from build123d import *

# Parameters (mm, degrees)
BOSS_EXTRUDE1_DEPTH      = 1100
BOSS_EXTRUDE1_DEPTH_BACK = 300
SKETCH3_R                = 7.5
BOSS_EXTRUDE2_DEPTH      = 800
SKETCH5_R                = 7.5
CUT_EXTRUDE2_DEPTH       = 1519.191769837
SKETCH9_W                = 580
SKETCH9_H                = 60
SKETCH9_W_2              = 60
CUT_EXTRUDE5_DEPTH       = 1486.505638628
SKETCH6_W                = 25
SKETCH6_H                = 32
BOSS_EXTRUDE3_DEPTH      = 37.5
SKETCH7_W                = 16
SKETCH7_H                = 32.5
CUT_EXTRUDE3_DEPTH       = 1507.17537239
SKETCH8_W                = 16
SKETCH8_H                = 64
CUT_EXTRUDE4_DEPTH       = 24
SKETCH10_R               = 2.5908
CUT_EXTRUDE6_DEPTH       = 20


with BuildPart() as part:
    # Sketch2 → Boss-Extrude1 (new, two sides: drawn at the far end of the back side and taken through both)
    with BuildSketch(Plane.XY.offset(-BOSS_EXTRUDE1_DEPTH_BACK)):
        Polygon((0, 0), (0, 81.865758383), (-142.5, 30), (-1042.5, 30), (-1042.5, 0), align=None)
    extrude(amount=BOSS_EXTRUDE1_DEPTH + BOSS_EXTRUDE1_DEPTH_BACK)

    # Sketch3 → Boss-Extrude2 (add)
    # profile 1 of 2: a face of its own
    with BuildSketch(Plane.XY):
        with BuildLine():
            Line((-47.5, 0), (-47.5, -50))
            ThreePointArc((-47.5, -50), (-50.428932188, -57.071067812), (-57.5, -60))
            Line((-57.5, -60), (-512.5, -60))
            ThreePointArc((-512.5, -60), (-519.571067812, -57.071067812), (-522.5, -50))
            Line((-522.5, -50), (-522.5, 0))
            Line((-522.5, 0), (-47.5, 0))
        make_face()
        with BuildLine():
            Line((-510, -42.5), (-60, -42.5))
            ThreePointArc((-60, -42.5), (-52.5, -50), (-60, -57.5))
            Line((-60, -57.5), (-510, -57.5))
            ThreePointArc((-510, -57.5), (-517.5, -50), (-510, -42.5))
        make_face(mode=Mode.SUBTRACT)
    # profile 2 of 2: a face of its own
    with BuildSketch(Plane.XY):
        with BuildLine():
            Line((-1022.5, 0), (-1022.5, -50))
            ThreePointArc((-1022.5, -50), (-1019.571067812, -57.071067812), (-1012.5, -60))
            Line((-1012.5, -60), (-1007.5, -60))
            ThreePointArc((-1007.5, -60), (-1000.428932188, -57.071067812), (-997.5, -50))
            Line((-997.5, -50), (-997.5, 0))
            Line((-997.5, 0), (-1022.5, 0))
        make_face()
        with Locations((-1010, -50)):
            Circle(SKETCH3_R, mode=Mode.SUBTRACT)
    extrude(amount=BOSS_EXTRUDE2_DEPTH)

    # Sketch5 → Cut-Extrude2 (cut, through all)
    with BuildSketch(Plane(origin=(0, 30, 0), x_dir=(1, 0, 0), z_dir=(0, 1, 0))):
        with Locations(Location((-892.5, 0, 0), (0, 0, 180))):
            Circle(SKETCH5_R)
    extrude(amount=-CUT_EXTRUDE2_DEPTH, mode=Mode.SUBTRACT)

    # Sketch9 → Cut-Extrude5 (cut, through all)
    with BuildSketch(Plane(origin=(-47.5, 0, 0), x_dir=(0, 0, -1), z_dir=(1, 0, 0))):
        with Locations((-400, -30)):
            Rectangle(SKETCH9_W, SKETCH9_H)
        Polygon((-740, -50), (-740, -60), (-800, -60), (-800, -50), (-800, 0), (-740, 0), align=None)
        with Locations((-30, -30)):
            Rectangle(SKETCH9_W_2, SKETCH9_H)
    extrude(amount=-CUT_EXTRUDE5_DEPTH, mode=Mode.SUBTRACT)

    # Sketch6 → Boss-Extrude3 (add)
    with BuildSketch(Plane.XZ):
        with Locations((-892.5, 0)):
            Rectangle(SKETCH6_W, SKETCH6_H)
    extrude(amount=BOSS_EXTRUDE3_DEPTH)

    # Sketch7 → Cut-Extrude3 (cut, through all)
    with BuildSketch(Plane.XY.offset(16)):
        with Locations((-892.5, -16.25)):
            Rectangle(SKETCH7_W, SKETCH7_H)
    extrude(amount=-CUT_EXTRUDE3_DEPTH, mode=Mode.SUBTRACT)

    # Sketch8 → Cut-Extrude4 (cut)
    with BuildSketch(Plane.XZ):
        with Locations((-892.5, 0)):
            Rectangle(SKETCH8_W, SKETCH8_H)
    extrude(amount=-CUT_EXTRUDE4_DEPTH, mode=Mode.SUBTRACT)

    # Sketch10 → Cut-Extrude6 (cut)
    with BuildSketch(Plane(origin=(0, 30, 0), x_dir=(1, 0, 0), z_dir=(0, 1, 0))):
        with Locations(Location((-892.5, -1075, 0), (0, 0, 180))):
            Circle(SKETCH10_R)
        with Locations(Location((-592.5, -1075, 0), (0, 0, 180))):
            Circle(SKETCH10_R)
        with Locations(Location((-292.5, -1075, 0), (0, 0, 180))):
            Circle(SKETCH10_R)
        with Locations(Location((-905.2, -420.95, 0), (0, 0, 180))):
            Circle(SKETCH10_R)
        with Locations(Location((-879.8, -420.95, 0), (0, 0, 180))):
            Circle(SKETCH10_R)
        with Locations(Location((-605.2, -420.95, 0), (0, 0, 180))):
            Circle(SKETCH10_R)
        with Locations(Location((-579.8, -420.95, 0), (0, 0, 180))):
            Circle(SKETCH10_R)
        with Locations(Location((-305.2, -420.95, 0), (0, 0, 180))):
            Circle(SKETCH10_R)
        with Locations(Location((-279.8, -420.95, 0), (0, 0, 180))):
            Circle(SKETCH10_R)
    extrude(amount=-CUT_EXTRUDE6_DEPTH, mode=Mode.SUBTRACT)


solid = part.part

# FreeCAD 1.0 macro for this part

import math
import FreeCAD as App
import Part
import Sketcher
from FreeCAD import Vector
Q = App.Units.Quantity


def add_polygon(sketch, points):
    """Adds a closed chain of lines whose ends are joined by coincident constraints."""
    first, n = sketch.GeometryCount, len(points)
    for a, b in zip(points, points[1:] + points[:1]):
        sketch.addGeometry(Part.LineSegment(App.Vector(*a, 0), App.Vector(*b, 0)), False)
    for i in range(n):
        sketch.addConstraint(Sketcher.Constraint("Coincident", first + i, 2, first + (i + 1) % n, 1))

doc = App.newDocument("Part")
body = doc.addObject("PartDesign::Body", "Body")

# Sketch on XY plane
sketch1 = body.newObject("Sketcher::SketchObject", "Sketch")
sketch1.AttachmentSupport = (doc.getObject("XY_Plane"), [""])
sketch1.MapMode = "FlatFace"
add_polygon(sketch1, [(0, 0), (0, 82), (-142, 30), (-1042, 30), (-1042, 0)])  # lines 0-4
sketch1.addConstraint([
    Sketcher.Constraint("Vertical", 0),
    Sketcher.Constraint("Horizontal", 2),
    Sketcher.Constraint("Vertical", 3),
    Sketcher.Constraint("Horizontal", 4),
    Sketcher.Constraint("Coincident", 4, 2, -1, 1),
    Sketcher.Constraint("DistanceX", 2, 2, 2, 1, 900.0),
    Sketcher.Constraint("DistanceY", 3, 2, 3, 1, 30.0),
    Sketcher.Constraint("Angle", 1, Q("-160 deg")),
    Sketcher.Constraint("DistanceX", 4, 1, 4, 2, 1042.5),
])
pad1 = body.newObject("PartDesign::Pad", "Pad")
pad1.Profile = sketch1
pad1.Type = "TwoLengths"
pad1.Length = 1100
pad1.Length2 = 300

# Sketch on XY plane
sketch2 = body.newObject("Sketcher::SketchObject", "Sketch001")
sketch2.AttachmentSupport = (doc.getObject("XY_Plane"), [""])
sketch2.MapMode = "FlatFace"
sketch2.addGeometry([
    Part.LineSegment(Vector(-48, -50, 0), Vector(-48, 0, 0)),  # 0
    Part.LineSegment(Vector(-48, 0, 0), Vector(-522, 0, 0)),  # 1
    Part.LineSegment(Vector(-522, 0, 0), Vector(-522, -50, 0)),  # 2
    Part.ArcOfCircle(Part.Circle(Vector(-512, -50, 0), Vector(0, 0, 1), 10), math.radians(180), math.radians(270)),  # 3
    Part.LineSegment(Vector(-512, -60, 0), Vector(-58, -60, 0)),  # 4
    Part.ArcOfCircle(Part.Circle(Vector(-58, -50, 0), Vector(0, 0, 1), 10), math.radians(-90), math.radians(0)),  # 5
    Part.LineSegment(Vector(-510, -42, 0), Vector(-60, -42, 0)),  # 6
    Part.ArcOfCircle(Part.Circle(Vector(-60, -50, 0), Vector(0, 0, 1), 8), math.radians(-90), math.radians(90)),  # 7
    Part.LineSegment(Vector(-60, -58, 0), Vector(-510, -58, 0)),  # 8
    Part.ArcOfCircle(Part.Circle(Vector(-510, -50, 0), Vector(0, 0, 1), 8), math.radians(90), math.radians(270)),  # 9
    Part.LineSegment(Vector(-1022, 0, 0), Vector(-1022, -50, 0)),  # 10
    Part.ArcOfCircle(Part.Circle(Vector(-1012, -50, 0), Vector(0, 0, 1), 10), math.radians(180), math.radians(270)),  # 11
    Part.LineSegment(Vector(-1012, -60, 0), Vector(-1008, -60, 0)),  # 12
    Part.ArcOfCircle(Part.Circle(Vector(-1008, -50, 0), Vector(0, 0, 1), 10), math.radians(-90), math.radians(0)),  # 13
    Part.LineSegment(Vector(-998, -50, 0), Vector(-998, 0, 0)),  # 14
    Part.LineSegment(Vector(-998, 0, 0), Vector(-1022, 0, 0)),  # 15
    Part.Circle(Vector(-1010, -50, 0), Vector(0, 0, 1), 8),  # 16
], False)
sketch2.addConstraint([
    Sketcher.Constraint("Coincident", 0, 2, 1, 1),
    Sketcher.Constraint("Coincident", 1, 2, 2, 1),
    Sketcher.Constraint("Tangent", 2, 2, 3, 1),
    Sketcher.Constraint("Tangent", 3, 2, 4, 1),
    Sketcher.Constraint("Tangent", 4, 2, 5, 1),
    Sketcher.Constraint("Tangent", 5, 2, 0, 1),
    Sketcher.Constraint("Tangent", 6, 2, 7, 2),
    Sketcher.Constraint("Tangent", 7, 1, 8, 1),
    Sketcher.Constraint("Tangent", 8, 2, 9, 2),
    Sketcher.Constraint("Tangent", 9, 1, 6, 1),
    Sketcher.Constraint("Tangent", 10, 2, 11, 1),
    Sketcher.Constraint("Tangent", 11, 2, 12, 1),
    Sketcher.Constraint("Tangent", 12, 2, 13, 1),
    Sketcher.Constraint("Tangent", 13, 2, 14, 1),
    Sketcher.Constraint("Coincident", 14, 2, 15, 1),
    Sketcher.Constraint("Coincident", 15, 2, 10, 1),
    Sketcher.Constraint("Vertical", 0),
    Sketcher.Constraint("Horizontal", 1),
    Sketcher.Constraint("Vertical", 2),
    Sketcher.Constraint("Horizontal", 4),
    Sketcher.Constraint("Horizontal", 6),
    Sketcher.Constraint("Horizontal", 8),
    Sketcher.Constraint("Vertical", 10),
    Sketcher.Constraint("Horizontal", 12),
    Sketcher.Constraint("Vertical", 14),
    Sketcher.Constraint("Horizontal", 15),
    Sketcher.Constraint("Equal", 3, 5),
    Sketcher.Constraint("Equal", 5, 11),
    Sketcher.Constraint("Equal", 11, 13),
    Sketcher.Constraint("Equal", 9, 16),
    Sketcher.Constraint("PointOnObject", 0, 2, -1),
    Sketcher.Constraint("PointOnObject", 14, 2, -1),
    Sketcher.Constraint("Horizontal", 5, 3, 7, 3),
    Sketcher.Constraint("Horizontal", 9, 3, 11, 3),
    Sketcher.Constraint("Horizontal", 13, 3, 16, 3),
    Sketcher.Constraint("Diameter", 16, 15.0),
    Sketcher.Constraint("Radius", 3, 10.0),
    Sketcher.Constraint("DistanceX", 1, 2, 1, 1, 475.0),
    Sketcher.Constraint("DistanceX", 6, 1, 6, 2, 450.0),
    Sketcher.Constraint("DistanceX", 12, 1, 12, 2, 5.0),
    Sketcher.Constraint("DistanceY", 0, 1, 0, 2, 50.0),
    Sketcher.Constraint("DistanceX", 7, 3, -1, 1, 60.0),
    Sketcher.Constraint("DistanceX", 16, 3, -1, 1, 1010.0),
    Sketcher.Constraint("DistanceX", 11, 3, 3, 3, 500.0),
    Sketcher.Constraint("DistanceX", 3, 3, -1, 1, 512.5),
])
pad2 = body.newObject("PartDesign::Pad", "Pad001")
pad2.Profile = sketch2
pad2.Length = 800

# Sketch on XZ plane
sketch3 = body.newObject("Sketcher::SketchObject", "Sketch002")
sketch3.AttachmentSupport = (doc.getObject("XZ_Plane"), [""])
sketch3.MapMode = "FlatFace"
sketch3.AttachmentOffset = App.Placement(Vector(0, 0, -30), App.Rotation())
sketch3.addGeometry(Part.Circle(Vector(-892, 0, 0), Vector(0, 0, 1), 8), False)
sketch3.addConstraint([
    Sketcher.Constraint("PointOnObject", 0, 3, -1),
    Sketcher.Constraint("Diameter", 0, 15.0),
    Sketcher.Constraint("DistanceX", 0, 3, -1, 1, 892.5),
])
pocket1 = body.newObject("PartDesign::Pocket", "Pocket")
pocket1.Profile = sketch3
pocket1.Type = "ThroughAll"
pocket1.Reversed = True

# Sketch on YZ plane
sketch4 = body.newObject("Sketcher::SketchObject", "Sketch003")
sketch4.AttachmentSupport = (doc.getObject("YZ_Plane"), [""])
sketch4.MapMode = "FlatFace"
sketch4.AttachmentOffset = App.Placement(Vector(0, 0, -47.5), App.Rotation())
add_polygon(sketch4, [(0, 690), (-60, 690), (-60, 110), (0, 110)])  # lines 0-3
add_polygon(sketch4, [(-60, 740), (0, 740), (0, 800), (-60, 800)])  # lines 4-7
add_polygon(sketch4, [(0, 60), (-60, 60), (-60, 0), (0, 0)])  # lines 8-11
sketch4.addConstraint([
    Sketcher.Constraint("Horizontal", 0),
    Sketcher.Constraint("Vertical", 1),
    Sketcher.Constraint("Horizontal", 2),
    Sketcher.Constraint("Vertical", 3),
    Sketcher.Constraint("Horizontal", 4),
    Sketcher.Constraint("Vertical", 5),
    Sketcher.Constraint("Horizontal", 6),
    Sketcher.Constraint("Vertical", 7),
    Sketcher.Constraint("Horizontal", 8),
    Sketcher.Constraint("Vertical", 9),
    Sketcher.Constraint("Horizontal", 10),
    Sketcher.Constraint("Vertical", 11),
    Sketcher.Constraint("Coincident", 10, 2, -1, 1),
    Sketcher.Constraint("PointOnObject", 2, 2, -2),
    Sketcher.Constraint("PointOnObject", 4, 2, -2),
    Sketcher.Constraint("Vertical", 1, 2, 6, 2),
    Sketcher.Constraint("Vertical", 7, 2, 8, 2),
    Sketcher.Constraint("Equal", 10, 5),
    Sketcher.Constraint("Equal", 7, 9),
    Sketcher.Constraint("DistanceX", 0, 2, 0, 1, 60.0),
    Sketcher.Constraint("DistanceY", 1, 2, 1, 1, 580.0),
    Sketcher.Constraint("DistanceY", -1, 1, 0, 2, 690.0),
    Sketcher.Constraint("DistanceY", -1, 1, 4, 2, 740.0),
])
pocket2 = body.newObject("PartDesign::Pocket", "Pocket001")
pocket2.Profile = sketch4
pocket2.Type = "ThroughAll"

# Sketch on XZ plane
sketch5 = body.newObject("Sketcher::SketchObject", "Sketch004")
sketch5.AttachmentSupport = (doc.getObject("XZ_Plane"), [""])
sketch5.MapMode = "FlatFace"
add_polygon(sketch5, [(-905, 16), (-905, -16), (-880, -16), (-880, 16)])  # lines 0-3
sketch5.addConstraint([
    Sketcher.Constraint("Vertical", 0),
    Sketcher.Constraint("Horizontal", 1),
    Sketcher.Constraint("Vertical", 2),
    Sketcher.Constraint("Horizontal", 3),
    Sketcher.Constraint("DistanceX", 1, 1, 1, 2, 25.0),
    Sketcher.Constraint("DistanceY", 0, 2, 0, 1, 32.0),
    Sketcher.Constraint("DistanceX", 0, 2, -1, 1, 905.0),
    Sketcher.Constraint("DistanceY", 0, 2, -1, 1, 16.0),
])
pad3 = body.newObject("PartDesign::Pad", "Pad002")
pad3.Profile = sketch5
pad3.Length = 37.5

# Sketch on XY plane
sketch6 = body.newObject("Sketcher::SketchObject", "Sketch005")
sketch6.AttachmentSupport = (doc.getObject("XY_Plane"), [""])
sketch6.MapMode = "FlatFace"
sketch6.AttachmentOffset = App.Placement(Vector(0, 0, 16), App.Rotation())
add_polygon(sketch6, [(-900, 0), (-900, -32), (-884, -32), (-884, 0)])  # lines 0-3
sketch6.addConstraint([
    Sketcher.Constraint("Vertical", 0),
    Sketcher.Constraint("Horizontal", 1),
    Sketcher.Constraint("Vertical", 2),
    Sketcher.Constraint("Horizontal", 3),
    Sketcher.Constraint("PointOnObject", 2, 2, -1),
    Sketcher.Constraint("DistanceX", 1, 1, 1, 2, 16.0),
    Sketcher.Constraint("DistanceY", 0, 2, 0, 1, 32.5),
    Sketcher.Constraint("DistanceX", 0, 2, -1, 1, 900.5),
])
pocket3 = body.newObject("PartDesign::Pocket", "Pocket002")
pocket3.Profile = sketch6
pocket3.Type = "ThroughAll"

# Sketch on XZ plane
sketch7 = body.newObject("Sketcher::SketchObject", "Sketch006")
sketch7.AttachmentSupport = (doc.getObject("XZ_Plane"), [""])
sketch7.MapMode = "FlatFace"
add_polygon(sketch7, [(-900, 32), (-900, -32), (-884, -32), (-884, 32)])  # lines 0-3
sketch7.addConstraint([
    Sketcher.Constraint("Vertical", 0),
    Sketcher.Constraint("Horizontal", 1),
    Sketcher.Constraint("Vertical", 2),
    Sketcher.Constraint("Horizontal", 3),
    Sketcher.Constraint("DistanceX", 1, 1, 1, 2, 16.0),
    Sketcher.Constraint("DistanceY", 0, 2, 0, 1, 64.0),
    Sketcher.Constraint("DistanceY", 0, 2, -1, 1, 32.0),
    Sketcher.Constraint("DistanceX", 0, 2, -1, 1, 900.5),
])
pocket4 = body.newObject("PartDesign::Pocket", "Pocket003")
pocket4.Profile = sketch7
pocket4.Length = 24

# Sketch on XZ plane
sketch8 = body.newObject("Sketcher::SketchObject", "Sketch007")
sketch8.AttachmentSupport = (doc.getObject("XZ_Plane"), [""])
sketch8.MapMode = "FlatFace"
sketch8.AttachmentOffset = App.Placement(Vector(0, 0, -30), App.Rotation())
sketch8.addGeometry([
    Part.Circle(Vector(-892.5, 1075, 0), Vector(0, 0, 1), 2.6),  # 0
    Part.Circle(Vector(-592.5, 1075, 0), Vector(0, 0, 1), 2.6),  # 1
    Part.Circle(Vector(-292.5, 1075, 0), Vector(0, 0, 1), 2.6),  # 2
    Part.Circle(Vector(-905.2, 420.9, 0), Vector(0, 0, 1), 2.6),  # 3
    Part.Circle(Vector(-879.8, 420.9, 0), Vector(0, 0, 1), 2.6),  # 4
    Part.Circle(Vector(-605.2, 420.9, 0), Vector(0, 0, 1), 2.6),  # 5
    Part.Circle(Vector(-579.8, 420.9, 0), Vector(0, 0, 1), 2.6),  # 6
    Part.Circle(Vector(-305.2, 420.9, 0), Vector(0, 0, 1), 2.6),  # 7
    Part.Circle(Vector(-279.8, 420.9, 0), Vector(0, 0, 1), 2.6),  # 8
], False)
sketch8.addConstraint([
    Sketcher.Constraint("Equal", 0, 1),
    Sketcher.Constraint("Equal", 1, 2),
    Sketcher.Constraint("Equal", 2, 3),
    Sketcher.Constraint("Equal", 3, 4),
    Sketcher.Constraint("Equal", 4, 5),
    Sketcher.Constraint("Equal", 5, 6),
    Sketcher.Constraint("Equal", 6, 7),
    Sketcher.Constraint("Equal", 7, 8),
    Sketcher.Constraint("Horizontal", 0, 3, 1, 3),
    Sketcher.Constraint("Horizontal", 1, 3, 2, 3),
    Sketcher.Constraint("Horizontal", 3, 3, 4, 3),
    Sketcher.Constraint("Horizontal", 4, 3, 5, 3),
    Sketcher.Constraint("Horizontal", 5, 3, 6, 3),
    Sketcher.Constraint("Horizontal", 6, 3, 7, 3),
    Sketcher.Constraint("Horizontal", 7, 3, 8, 3),
    Sketcher.Constraint("DistanceY", -1, 1, 0, 3, 1075.0),
    Sketcher.Constraint("DistanceX", 0, 3, 1, 3, 300.0),
    Sketcher.Constraint("DistanceX", 1, 3, 2, 3, 300.0),
    Sketcher.Constraint("DistanceX", 3, 3, 5, 3, 300.0),
    Sketcher.Constraint("DistanceX", 4, 3, 6, 3, 300.0),
    Sketcher.Constraint("DistanceX", 5, 3, 7, 3, 300.0),
    Sketcher.Constraint("DistanceX", 6, 3, 8, 3, 300.0),
    Sketcher.Constraint("Diameter", 0, 5.1816),
    Sketcher.Constraint("DistanceX", 0, 3, -1, 1, 892.5),
    Sketcher.Constraint("DistanceX", 3, 3, -1, 1, 905.2),
    Sketcher.Constraint("DistanceX", 4, 3, -1, 1, 879.8),
    Sketcher.Constraint("DistanceY", -1, 1, 3, 3, 420.95),
])
pocket5 = body.newObject("PartDesign::Pocket", "Pocket004")
pocket5.Profile = sketch8
pocket5.Length = 20
pocket5.Reversed = True

doc.recompute()
